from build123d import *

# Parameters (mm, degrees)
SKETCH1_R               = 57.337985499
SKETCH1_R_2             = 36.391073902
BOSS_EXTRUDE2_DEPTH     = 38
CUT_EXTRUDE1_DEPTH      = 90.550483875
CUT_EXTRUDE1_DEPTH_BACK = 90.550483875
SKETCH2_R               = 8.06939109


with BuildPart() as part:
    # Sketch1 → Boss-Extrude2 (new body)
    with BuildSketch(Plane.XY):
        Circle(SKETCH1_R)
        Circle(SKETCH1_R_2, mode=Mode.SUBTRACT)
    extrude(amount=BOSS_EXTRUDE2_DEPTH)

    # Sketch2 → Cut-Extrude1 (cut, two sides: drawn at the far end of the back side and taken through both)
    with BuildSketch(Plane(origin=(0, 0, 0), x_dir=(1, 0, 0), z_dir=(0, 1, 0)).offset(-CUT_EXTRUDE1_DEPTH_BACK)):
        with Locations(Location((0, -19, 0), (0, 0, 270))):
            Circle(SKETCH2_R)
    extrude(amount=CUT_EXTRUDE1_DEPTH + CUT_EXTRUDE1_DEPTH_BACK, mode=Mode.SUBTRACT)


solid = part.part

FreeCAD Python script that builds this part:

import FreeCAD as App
import Part
import Sketcher

V = App.Vector
Q = App.Units.Quantity

doc = App.newDocument("Part")
params = doc.addObject("Spreadsheet::Sheet", "Params")
for row, (alias, value) in enumerate([
    ("pad1_length", "38 mm"),
], start=1):
    params.set(f"A{row}", alias)
    params.set(f"B{row}", "=" + value)
    params.setAlias(f"B{row}", alias)

body = doc.addObject("PartDesign::Body", "Body")

sketch1 = body.newObject("Sketcher::SketchObject", "Sketch")
sketch1.AttachmentSupport = (doc.getObject("XY_Plane"), [""])
sketch1.MapMode = "FlatFace"
sketch1.addGeometry([
    Part.Circle(V(0, 0, 0), V(0, 0, 1), 57),
    Part.Circle(V(0, 0, 0), V(0, 0, 1), 36),
], False)
sketch1.addConstraint([
    Sketcher.Constraint("Coincident", 0, 3, -1, 1),
    Sketcher.Constraint("Coincident", 1, 3, -1, 1),
    Sketcher.Constraint("Diameter", 0, Q("114.675971 mm")),
    Sketcher.Constraint("Diameter", 1, Q("72.782148 mm")),
])
pad1 = body.newObject("PartDesign::Pad", "Pad")
pad1.Profile = sketch1
pad1.setExpression("Length", "Params.pad1_length")

sketch2 = body.newObject("Sketcher::SketchObject", "Sketch001")
sketch2.AttachmentSupport = (doc.getObject("XZ_Plane"), [""])
sketch2.MapMode = "FlatFace"
sketch2.addGeometry(Part.Circle(V(0, 19, 0), V(0, 0, 1), 8), False)
sketch2.addConstraint([
    Sketcher.Constraint("PointOnObject", 0, 3, -2),
    Sketcher.Constraint("DistanceY", -1, 1, 0, 3, Q("19 mm")),
    Sketcher.Constraint("Diameter", 0, Q("16.138782 mm")),
])
pocket1 = body.newObject("PartDesign::Pocket", "Pocket")
pocket1.Profile = sketch2
pocket1.Type = "ThroughAll"
pocket1.Midplane = True

doc.recompute()
